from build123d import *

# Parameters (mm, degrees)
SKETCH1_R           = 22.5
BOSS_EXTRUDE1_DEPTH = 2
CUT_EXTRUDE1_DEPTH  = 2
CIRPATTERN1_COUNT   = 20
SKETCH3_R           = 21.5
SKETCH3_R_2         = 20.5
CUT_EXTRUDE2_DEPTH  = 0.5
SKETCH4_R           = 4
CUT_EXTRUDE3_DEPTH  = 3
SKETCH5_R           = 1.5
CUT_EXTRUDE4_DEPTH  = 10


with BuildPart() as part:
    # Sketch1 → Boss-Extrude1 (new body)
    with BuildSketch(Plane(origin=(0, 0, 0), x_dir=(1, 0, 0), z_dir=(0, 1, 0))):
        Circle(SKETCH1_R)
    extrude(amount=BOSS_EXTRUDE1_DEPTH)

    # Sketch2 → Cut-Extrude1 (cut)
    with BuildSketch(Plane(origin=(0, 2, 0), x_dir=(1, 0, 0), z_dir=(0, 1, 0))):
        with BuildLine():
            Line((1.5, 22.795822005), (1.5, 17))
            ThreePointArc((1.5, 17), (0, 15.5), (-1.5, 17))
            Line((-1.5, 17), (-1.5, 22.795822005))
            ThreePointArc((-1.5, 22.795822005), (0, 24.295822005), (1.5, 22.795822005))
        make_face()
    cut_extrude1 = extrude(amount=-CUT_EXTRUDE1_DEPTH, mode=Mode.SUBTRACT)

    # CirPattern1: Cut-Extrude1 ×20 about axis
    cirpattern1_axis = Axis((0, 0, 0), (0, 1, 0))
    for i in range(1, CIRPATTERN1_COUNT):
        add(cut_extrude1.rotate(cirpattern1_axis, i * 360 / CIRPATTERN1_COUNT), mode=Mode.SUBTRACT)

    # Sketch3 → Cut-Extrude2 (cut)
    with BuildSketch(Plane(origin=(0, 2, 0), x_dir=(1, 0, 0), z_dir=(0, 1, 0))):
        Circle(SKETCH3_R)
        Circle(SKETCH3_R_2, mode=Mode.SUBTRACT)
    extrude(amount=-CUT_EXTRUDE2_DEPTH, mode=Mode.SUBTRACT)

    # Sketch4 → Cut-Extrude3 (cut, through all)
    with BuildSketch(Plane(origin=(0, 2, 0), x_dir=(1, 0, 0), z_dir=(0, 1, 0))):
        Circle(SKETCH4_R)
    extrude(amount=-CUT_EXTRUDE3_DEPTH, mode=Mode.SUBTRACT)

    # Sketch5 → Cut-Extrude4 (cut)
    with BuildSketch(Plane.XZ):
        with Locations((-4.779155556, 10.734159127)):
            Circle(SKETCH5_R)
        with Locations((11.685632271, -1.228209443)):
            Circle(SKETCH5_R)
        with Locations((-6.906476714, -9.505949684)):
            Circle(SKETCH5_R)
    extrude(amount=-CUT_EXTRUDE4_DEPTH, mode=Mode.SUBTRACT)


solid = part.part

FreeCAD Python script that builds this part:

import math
import FreeCAD as App
import Part
import Sketcher
from FreeCAD import Vector

doc = App.newDocument("Part")
params = doc.addObject("Spreadsheet::Sheet", "Params")
for row, (alias, value) in enumerate([
    ("sketch1_diameter", "45 mm"),
    ("pad1_length", "2 mm"),
    ("sketch2_radius", "1.5 mm"),
    ("pocket1_length", "2 mm"),
    ("sketch3_diameter", "43 mm"),
    ("sketch3_diameter2", "41 mm"),
    ("pocket2_length", "0.5 mm"),
    ("sketch4_diameter", "8 mm"),
    ("sketch5_diameter", "3 mm"),
    ("pocket4_length", "10 mm"),
], start=1):
    params.set(f"A{row}", alias)
    params.set(f"B{row}", "=" + value)
    params.setAlias(f"B{row}", alias)

body = doc.addObject("PartDesign::Body", "Body")

sketch1 = doc.addObject("Sketcher::SketchObject", "Sketch")
body.addObject(sketch1)
sketch1.AttachmentSupport = (doc.XZ_Plane, [""])
sketch1.MapMode = "FlatFace"
sketch1.addGeometry(Part.Circle(Vector(0, 0, 0), Vector(0, 0, 1), 22), False)
sketch1.addConstraint(Sketcher.Constraint("Coincident", 0, 3, -1, 1))
sketch1.addConstraint(Sketcher.Constraint("Diameter", 0, 45.0))
sketch1.setExpression("Constraints[1]", "Params.sketch1_diameter")
pad1 = doc.addObject("PartDesign::Pad", "Pad")
body.addObject(pad1)
pad1.Profile = sketch1
pad1.setExpression("Length", "Params.pad1_length")
pad1.Reversed = True

sketch2 = doc.addObject("Sketcher::SketchObject", "Sketch001")
body.addObject(sketch2)
sketch2.AttachmentSupport = (doc.XZ_Plane, [""])
sketch2.MapMode = "FlatFace"
sketch2.AttachmentOffset = App.Placement(Vector(0, 0, -2), App.Rotation())
sketch2.addGeometry(Part.LineSegment(Vector(1.5, -17, 0), Vector(1.5, -22.8, 0)), False)
sketch2.addGeometry(Part.ArcOfCircle(Part.Circle(Vector(0, -22.8, 0), Vector(0, 0, 1), 1.5), math.radians(180), math.radians(360)), False)
sketch2.addGeometry(Part.LineSegment(Vector(-1.5, -22.8, 0), Vector(-1.5, -17, 0)), False)
sketch2.addGeometry(Part.ArcOfCircle(Part.Circle(Vector(0, -17, 0), Vector(0, 0, 1), 1.5), math.radians(0), math.radians(180)), False)
sketch2.addConstraint(Sketcher.Constraint("Tangent", 0, 2, 1, 2))
sketch2.addConstraint(Sketcher.Constraint("Tangent", 1, 1, 2, 1))
sketch2.addConstraint(Sketcher.Constraint("Tangent", 2, 2, 3, 2))
sketch2.addConstraint(Sketcher.Constraint("Tangent", 3, 1, 0, 1))
sketch2.addConstraint(Sketcher.Constraint("Vertical", 0))
sketch2.addConstraint(Sketcher.Constraint("Vertical", 2))
sketch2.addConstraint(Sketcher.Constraint("PointOnObject", 1, 3, -2))
sketch2.addConstraint(Sketcher.Constraint("Radius", 1, 1.5))
sketch2.addConstraint(Sketcher.Constraint("DistanceY", 3, 3, -1, 1, 17.0))
sketch2.addConstraint(Sketcher.Constraint("DistanceY", 0, 2, 0, 1, 5.795822))
sketch2.setExpression("Constraints[7]", "Params.sketch2_radius")
pocket1 = doc.addObject("PartDesign::Pocket", "Pocket")
body.addObject(pocket1)
pocket1.Profile = sketch2
pocket1.setExpression("Length", "Params.pocket1_length")
pocket1.Reversed = True
doc.recompute()

polarpattern = doc.addObject("PartDesign::PolarPattern", "PolarPattern")
body.addObject(polarpattern)
polarpattern.Originals = [pocket1]
polarpattern.Axis = (doc.Y_Axis, [""])
polarpattern.Angle = 360
polarpattern.Occurrences = 20
body.Tip = polarpattern

sketch3 = doc.addObject("Sketcher::SketchObject", "Sketch002")
body.addObject(sketch3)
sketch3.AttachmentSupport = (doc.XZ_Plane, [""])
sketch3.MapMode = "FlatFace"
sketch3.AttachmentOffset = App.Placement(Vector(0, 0, -2), App.Rotation())
sketch3.addGeometry(Part.Circle(Vector(0, 0, 0), Vector(0, 0, 1), 22), False)
sketch3.addGeometry(Part.Circle(Vector(0, 0, 0), Vector(0, 0, 1), 20), False)
sketch3.addConstraint(Sketcher.Constraint("Coincident", 0, 3, -1, 1))
sketch3.addConstraint(Sketcher.Constraint("Coincident", 1, 3, -1, 1))
sketch3.addConstraint(Sketcher.Constraint("Diameter", 0, 43.0))
sketch3.addConstraint(Sketcher.Constraint("Diameter", 1, 41.0))
sketch3.setExpression("Constraints[2]", "Params.sketch3_diameter")
sketch3.setExpression("Constraints[3]", "Params.sketch3_diameter2")
pocket2 = doc.addObject("PartDesign::Pocket", "Pocket001")
body.addObject(pocket2)
pocket2.Profile = sketch3
pocket2.setExpression("Length", "Params.pocket2_length")
pocket2.Reversed = True

sketch4 = doc.addObject("Sketcher::SketchObject", "Sketch003")
body.addObject(sketch4)
sketch4.AttachmentSupport = (doc.XZ_Plane, [""])
sketch4.MapMode = "FlatFace"
sketch4.AttachmentOffset = App.Placement(Vector(0, 0, -2), App.Rotation())
sketch4.addGeometry(Part.Circle(Vector(0, 0, 0), Vector(0, 0, 1), 4), False)
sketch4.addConstraint(Sketcher.Constraint("Coincident", 0, 3, -1, 1))
sketch4.addConstraint(Sketcher.Constraint("Diameter", 0, 8.0))
sketch4.setExpression("Constraints[1]", "Params.sketch4_diameter")
pocket3 = doc.addObject("PartDesign::Pocket", "Pocket002")
body.addObject(pocket3)
pocket3.Profile = sketch4
pocket3.Type = "ThroughAll"
pocket3.Reversed = True

sketch5 = doc.addObject("Sketcher::SketchObject", "Sketch004")
body.addObject(sketch5)
sketch5.AttachmentSupport = (doc.XZ_Plane, [""])
sketch5.MapMode = "FlatFace"
sketch5.addGeometry(Part.Circle(Vector(-4.8, 10.7, 0), Vector(0, 0, 1), 1.5), False)
sketch5.addGeometry(Part.Circle(Vector(11.7, -1.2, 0), Vector(0, 0, 1), 1.5), False)
sketch5.addGeometry(Part.Circle(Vector(-6.9, -9.5, 0), Vector(0, 0, 1), 1.5), False)
sketch5.addConstraint(Sketcher.Constraint("Equal", 0, 1))
sketch5.addConstraint(Sketcher.Constraint("Equal", 1, 2))
sketch5.addConstraint(Sketcher.Constraint("Diameter", 0, 3.0))
sketch5.addConstraint(Sketcher.Constraint("DistanceY", -1, 1, 0, 3, 10.734159))
sketch5.addConstraint(Sketcher.Constraint("DistanceY", 1, 3, -1, 1, 1.228209))
sketch5.addConstraint(Sketcher.Constraint("DistanceY", 2, 3, -1, 1, 9.50595))
sketch5.addConstraint(Sketcher.Constraint("DistanceX", 2, 3, 0, 3, 2.127321))
sketch5.addConstraint(Sketcher.Constraint("DistanceX", 2, 3, 1, 3, 18.592109))
sketch5.addConstraint(Sketcher.Constraint("DistanceX", 0, 3, -1, 1, 4.779156))
sketch5.setExpression("Constraints[2]", "Params.sketch5_diameter")
pocket4 = doc.addObject("PartDesign::Pocket", "Pocket003")
body.addObject(pocket4)
pocket4.Profile = sketch5
pocket4.setExpression("Length", "Params.pocket4_length")

doc.recompute()
